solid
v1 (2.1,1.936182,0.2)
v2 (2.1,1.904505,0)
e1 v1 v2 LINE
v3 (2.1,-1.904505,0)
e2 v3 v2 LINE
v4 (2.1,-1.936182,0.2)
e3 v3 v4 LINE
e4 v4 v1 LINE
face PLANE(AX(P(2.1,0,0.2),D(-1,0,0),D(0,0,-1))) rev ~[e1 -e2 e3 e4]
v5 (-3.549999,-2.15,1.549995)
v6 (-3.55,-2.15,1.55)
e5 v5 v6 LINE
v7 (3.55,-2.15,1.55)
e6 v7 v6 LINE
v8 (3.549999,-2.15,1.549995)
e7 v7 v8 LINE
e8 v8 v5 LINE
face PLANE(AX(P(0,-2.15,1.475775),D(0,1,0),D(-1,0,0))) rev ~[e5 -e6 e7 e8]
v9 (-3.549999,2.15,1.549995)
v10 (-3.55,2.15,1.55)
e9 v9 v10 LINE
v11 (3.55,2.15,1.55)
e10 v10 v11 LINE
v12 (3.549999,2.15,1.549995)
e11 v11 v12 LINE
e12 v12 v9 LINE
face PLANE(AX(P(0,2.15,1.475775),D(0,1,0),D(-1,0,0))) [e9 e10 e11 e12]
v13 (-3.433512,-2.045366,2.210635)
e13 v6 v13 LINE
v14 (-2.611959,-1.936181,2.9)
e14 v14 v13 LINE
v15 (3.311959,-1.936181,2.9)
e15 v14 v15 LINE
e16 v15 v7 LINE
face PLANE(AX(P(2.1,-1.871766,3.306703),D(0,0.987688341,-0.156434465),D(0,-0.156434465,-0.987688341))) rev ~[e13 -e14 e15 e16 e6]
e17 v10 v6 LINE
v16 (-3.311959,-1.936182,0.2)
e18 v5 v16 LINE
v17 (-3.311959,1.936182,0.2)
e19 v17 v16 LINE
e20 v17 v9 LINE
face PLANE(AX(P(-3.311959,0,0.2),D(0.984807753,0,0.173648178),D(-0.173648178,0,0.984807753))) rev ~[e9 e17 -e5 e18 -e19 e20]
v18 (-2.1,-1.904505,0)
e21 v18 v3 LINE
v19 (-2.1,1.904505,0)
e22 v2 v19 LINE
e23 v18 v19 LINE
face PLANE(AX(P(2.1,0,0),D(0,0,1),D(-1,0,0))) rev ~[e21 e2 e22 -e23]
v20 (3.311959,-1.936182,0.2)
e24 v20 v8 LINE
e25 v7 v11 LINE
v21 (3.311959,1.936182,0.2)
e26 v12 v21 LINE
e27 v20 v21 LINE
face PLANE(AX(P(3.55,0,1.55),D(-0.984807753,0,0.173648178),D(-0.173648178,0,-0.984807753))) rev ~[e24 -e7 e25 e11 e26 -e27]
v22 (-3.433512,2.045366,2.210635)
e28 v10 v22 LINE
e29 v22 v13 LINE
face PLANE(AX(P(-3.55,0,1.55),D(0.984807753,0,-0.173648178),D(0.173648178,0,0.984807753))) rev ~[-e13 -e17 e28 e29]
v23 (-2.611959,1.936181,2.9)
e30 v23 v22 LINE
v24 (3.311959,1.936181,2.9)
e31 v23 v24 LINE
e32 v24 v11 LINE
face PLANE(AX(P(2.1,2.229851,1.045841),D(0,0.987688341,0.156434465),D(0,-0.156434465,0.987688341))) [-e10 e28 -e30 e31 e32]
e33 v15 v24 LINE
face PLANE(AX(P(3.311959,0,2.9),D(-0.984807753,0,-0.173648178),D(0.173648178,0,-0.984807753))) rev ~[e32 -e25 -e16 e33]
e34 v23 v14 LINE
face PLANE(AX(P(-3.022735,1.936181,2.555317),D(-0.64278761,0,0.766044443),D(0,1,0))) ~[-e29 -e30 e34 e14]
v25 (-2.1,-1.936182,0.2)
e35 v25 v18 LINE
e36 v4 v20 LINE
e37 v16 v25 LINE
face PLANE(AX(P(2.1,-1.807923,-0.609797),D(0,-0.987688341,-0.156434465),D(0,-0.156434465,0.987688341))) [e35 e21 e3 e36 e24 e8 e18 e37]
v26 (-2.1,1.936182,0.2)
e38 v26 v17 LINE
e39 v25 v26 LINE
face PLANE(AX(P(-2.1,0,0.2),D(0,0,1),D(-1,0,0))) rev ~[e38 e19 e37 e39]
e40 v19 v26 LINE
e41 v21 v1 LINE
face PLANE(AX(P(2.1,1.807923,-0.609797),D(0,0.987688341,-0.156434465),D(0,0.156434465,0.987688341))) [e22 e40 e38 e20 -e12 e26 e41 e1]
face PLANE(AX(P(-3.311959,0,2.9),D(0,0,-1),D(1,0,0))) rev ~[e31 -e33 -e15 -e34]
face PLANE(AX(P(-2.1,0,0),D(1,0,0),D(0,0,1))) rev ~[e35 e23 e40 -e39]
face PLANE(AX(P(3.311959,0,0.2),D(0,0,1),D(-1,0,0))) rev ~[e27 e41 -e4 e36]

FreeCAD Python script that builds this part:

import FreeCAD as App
import Part
import Sketcher
from FreeCAD import Vector
Q = App.Units.Quantity


def edges_at(feature, points):
    """Names of the edges that pass closest to the given points."""
    edges = feature.Shape.Edges
    near = lambda p: min(range(len(edges)), key=lambda i: edges[i].distToShape(Part.Vertex(*p))[0])
    return sorted({f"Edge{near(p) + 1}" for p in points})


def add_polygon(sketch, points):
    """Adds a closed chain of lines whose ends are joined by coincident constraints."""
    first, n = sketch.GeometryCount, len(points)
    for a, b in zip(points, points[1:] + points[:1]):
        sketch.addGeometry(Part.LineSegment(App.Vector(*a, 0), App.Vector(*b, 0)), False)
    for i in range(n):
        sketch.addConstraint(Sketcher.Constraint("Coincident", first + i, 2, first + (i + 1) % n, 1))

doc = App.newDocument("Part")
body = doc.addObject("PartDesign::Body", "Body")

sketch1 = doc.addObject("Sketcher::SketchObject", "Sketch")
body.addObject(sketch1)
sketch1.AttachmentSupport = (doc.XZ_Plane, [""])
sketch1.MapMode = "FlatFace"
add_polygon(sketch1, [(3.31, 2.9), (-3.31, 2.9), (-3.55, 1.55), (-3.31, 0.2), (-2.1, 0.2), (-2.1, 0), (2.1, 0), (2.1, 0.2), (3.31, 0.2), (3.55, 1.55)])
sketch1.addConstraint([
    Sketcher.Constraint("Horizontal", 0),
    Sketcher.Constraint("Horizontal", 3),
    Sketcher.Constraint("Vertical", 4),
    Sketcher.Constraint("Horizontal", 5),
    Sketcher.Constraint("Vertical", 6),
    Sketcher.Constraint("Horizontal", 7),
    Sketcher.Constraint("Symmetric", 4, 2, 5, 2, -1, 1),
    Sketcher.Constraint("Symmetric", 2, 2, 7, 2, -2),
    Sketcher.Constraint("Symmetric", 1, 2, 8, 2, -2),
    Sketcher.Constraint("Parallel", 1, 8),
    Sketcher.Constraint("Parallel", 2, 9),
    Sketcher.Constraint("Vertical", 0, 2, 2, 2),
    Sketcher.Constraint("Angle", 1, Q("-100 deg")),
    Sketcher.Constraint("DistanceX", 5, 1, 5, 2, 4.2),
    Sketcher.Constraint("DistanceY", 4, 2, 4, 1, 0.2),
    Sketcher.Constraint("DistanceY", -1, 1, 0, 2, 2.9),
    Sketcher.Constraint("DistanceX", 1, 2, -1, 1, 3.55),
])
pad1 = doc.addObject("PartDesign::Pad", "Pad")
body.addObject(pad1)
pad1.Profile = sketch1
pad1.Length = 4.3
pad1.Midplane = True

sketch2 = doc.addObject("Sketcher::SketchObject", "Sketch001")
body.addObject(sketch2)
sketch2.AttachmentSupport = (doc.YZ_Plane, [""])
sketch2.MapMode = "FlatFace"
sketch2.AttachmentOffset = App.Placement(Vector(0, 0, 2.1), App.Rotation())
add_polygon(sketch2, [(-1.9, 3.3), (-2.2, 2.9), (-2.2, 1)])
add_polygon(sketch2, [(2.2, 2.9), (1.9, 3.3), (2.2, 1)])
sketch2.addConstraint([
    Sketcher.Constraint("Vertical", 1),
    Sketcher.Constraint("Vertical", 5),
    Sketcher.Constraint("Symmetric", 2, 2, 3, 2, -2),
    Sketcher.Constraint("Symmetric", 1, 2, 4, 2, -2),
    Sketcher.Constraint("Horizontal", 0, 2, 5, 2),
    Sketcher.Constraint("Angle", 2, Q("81 deg")),
    Sketcher.Constraint("Distance", 0, 0.5255),
    Sketcher.Constraint("DistanceY", 1, 2, 1, 1, 1.876252),
    Sketcher.Constraint("DistanceX", 0, 2, -1, 1, 2.229851),
    Sketcher.Constraint("DistanceY", -1, 1, 1, 2, 1.045841),
])
pocket1 = doc.addObject("PartDesign::Pocket", "Pocket")
body.addObject(pocket1)
pocket1.Profile = sketch2
pocket1.Length = 20
pocket1.Midplane = True

sketch3 = doc.addObject("Sketcher::SketchObject", "Sketch002")
body.addObject(sketch3)
sketch3.AttachmentSupport = (doc.YZ_Plane, [""])
sketch3.MapMode = "FlatFace"
sketch3.AttachmentOffset = App.Placement(Vector(0, 0, 2.1), App.Rotation())
add_polygon(sketch3, [(-2.25, 2.19), (-2.25, -0.48), (-1.81, -0.61)])
add_polygon(sketch3, [(2.25, -0.48), (2.25, 2.19), (1.81, -0.61)])
sketch3.addConstraint([
    Sketcher.Constraint("Vertical", 0),
    Sketcher.Constraint("Vertical", 3),
    Sketcher.Constraint("Symmetric", 2, 2, 3, 2, -2),
    Sketcher.Constraint("Symmetric", 1, 2, 4, 2, -2),
    Sketcher.Constraint("Horizontal", 0, 2, 5, 2),
    Sketcher.Constraint("Angle", 2, Q("99 deg")),
    Sketcher.Constraint("Distance", 2, 2.838498),
    Sketcher.Constraint("DistanceY", 0, 2, 0, 1, 2.671364),
    Sketcher.Constraint("DistanceX", 0, 2, -1, 1, 2.251961),
    Sketcher.Constraint("DistanceY", 0, 2, -1, 1, 0.47761),
])
pocket2 = doc.addObject("PartDesign::Pocket", "Pocket001")
body.addObject(pocket2)
pocket2.Profile = sketch3
pocket2.Length = 25
pocket2.Midplane = True
doc.recompute()

chamfer = doc.addObject("PartDesign::Chamfer", "Chamfer")
body.addObject(chamfer)
chamfer.Base = (pocket2, edges_at(pocket2, [(-3.312, 0, 2.9)]))
chamfer.Size = 0.7

doc.recompute()
